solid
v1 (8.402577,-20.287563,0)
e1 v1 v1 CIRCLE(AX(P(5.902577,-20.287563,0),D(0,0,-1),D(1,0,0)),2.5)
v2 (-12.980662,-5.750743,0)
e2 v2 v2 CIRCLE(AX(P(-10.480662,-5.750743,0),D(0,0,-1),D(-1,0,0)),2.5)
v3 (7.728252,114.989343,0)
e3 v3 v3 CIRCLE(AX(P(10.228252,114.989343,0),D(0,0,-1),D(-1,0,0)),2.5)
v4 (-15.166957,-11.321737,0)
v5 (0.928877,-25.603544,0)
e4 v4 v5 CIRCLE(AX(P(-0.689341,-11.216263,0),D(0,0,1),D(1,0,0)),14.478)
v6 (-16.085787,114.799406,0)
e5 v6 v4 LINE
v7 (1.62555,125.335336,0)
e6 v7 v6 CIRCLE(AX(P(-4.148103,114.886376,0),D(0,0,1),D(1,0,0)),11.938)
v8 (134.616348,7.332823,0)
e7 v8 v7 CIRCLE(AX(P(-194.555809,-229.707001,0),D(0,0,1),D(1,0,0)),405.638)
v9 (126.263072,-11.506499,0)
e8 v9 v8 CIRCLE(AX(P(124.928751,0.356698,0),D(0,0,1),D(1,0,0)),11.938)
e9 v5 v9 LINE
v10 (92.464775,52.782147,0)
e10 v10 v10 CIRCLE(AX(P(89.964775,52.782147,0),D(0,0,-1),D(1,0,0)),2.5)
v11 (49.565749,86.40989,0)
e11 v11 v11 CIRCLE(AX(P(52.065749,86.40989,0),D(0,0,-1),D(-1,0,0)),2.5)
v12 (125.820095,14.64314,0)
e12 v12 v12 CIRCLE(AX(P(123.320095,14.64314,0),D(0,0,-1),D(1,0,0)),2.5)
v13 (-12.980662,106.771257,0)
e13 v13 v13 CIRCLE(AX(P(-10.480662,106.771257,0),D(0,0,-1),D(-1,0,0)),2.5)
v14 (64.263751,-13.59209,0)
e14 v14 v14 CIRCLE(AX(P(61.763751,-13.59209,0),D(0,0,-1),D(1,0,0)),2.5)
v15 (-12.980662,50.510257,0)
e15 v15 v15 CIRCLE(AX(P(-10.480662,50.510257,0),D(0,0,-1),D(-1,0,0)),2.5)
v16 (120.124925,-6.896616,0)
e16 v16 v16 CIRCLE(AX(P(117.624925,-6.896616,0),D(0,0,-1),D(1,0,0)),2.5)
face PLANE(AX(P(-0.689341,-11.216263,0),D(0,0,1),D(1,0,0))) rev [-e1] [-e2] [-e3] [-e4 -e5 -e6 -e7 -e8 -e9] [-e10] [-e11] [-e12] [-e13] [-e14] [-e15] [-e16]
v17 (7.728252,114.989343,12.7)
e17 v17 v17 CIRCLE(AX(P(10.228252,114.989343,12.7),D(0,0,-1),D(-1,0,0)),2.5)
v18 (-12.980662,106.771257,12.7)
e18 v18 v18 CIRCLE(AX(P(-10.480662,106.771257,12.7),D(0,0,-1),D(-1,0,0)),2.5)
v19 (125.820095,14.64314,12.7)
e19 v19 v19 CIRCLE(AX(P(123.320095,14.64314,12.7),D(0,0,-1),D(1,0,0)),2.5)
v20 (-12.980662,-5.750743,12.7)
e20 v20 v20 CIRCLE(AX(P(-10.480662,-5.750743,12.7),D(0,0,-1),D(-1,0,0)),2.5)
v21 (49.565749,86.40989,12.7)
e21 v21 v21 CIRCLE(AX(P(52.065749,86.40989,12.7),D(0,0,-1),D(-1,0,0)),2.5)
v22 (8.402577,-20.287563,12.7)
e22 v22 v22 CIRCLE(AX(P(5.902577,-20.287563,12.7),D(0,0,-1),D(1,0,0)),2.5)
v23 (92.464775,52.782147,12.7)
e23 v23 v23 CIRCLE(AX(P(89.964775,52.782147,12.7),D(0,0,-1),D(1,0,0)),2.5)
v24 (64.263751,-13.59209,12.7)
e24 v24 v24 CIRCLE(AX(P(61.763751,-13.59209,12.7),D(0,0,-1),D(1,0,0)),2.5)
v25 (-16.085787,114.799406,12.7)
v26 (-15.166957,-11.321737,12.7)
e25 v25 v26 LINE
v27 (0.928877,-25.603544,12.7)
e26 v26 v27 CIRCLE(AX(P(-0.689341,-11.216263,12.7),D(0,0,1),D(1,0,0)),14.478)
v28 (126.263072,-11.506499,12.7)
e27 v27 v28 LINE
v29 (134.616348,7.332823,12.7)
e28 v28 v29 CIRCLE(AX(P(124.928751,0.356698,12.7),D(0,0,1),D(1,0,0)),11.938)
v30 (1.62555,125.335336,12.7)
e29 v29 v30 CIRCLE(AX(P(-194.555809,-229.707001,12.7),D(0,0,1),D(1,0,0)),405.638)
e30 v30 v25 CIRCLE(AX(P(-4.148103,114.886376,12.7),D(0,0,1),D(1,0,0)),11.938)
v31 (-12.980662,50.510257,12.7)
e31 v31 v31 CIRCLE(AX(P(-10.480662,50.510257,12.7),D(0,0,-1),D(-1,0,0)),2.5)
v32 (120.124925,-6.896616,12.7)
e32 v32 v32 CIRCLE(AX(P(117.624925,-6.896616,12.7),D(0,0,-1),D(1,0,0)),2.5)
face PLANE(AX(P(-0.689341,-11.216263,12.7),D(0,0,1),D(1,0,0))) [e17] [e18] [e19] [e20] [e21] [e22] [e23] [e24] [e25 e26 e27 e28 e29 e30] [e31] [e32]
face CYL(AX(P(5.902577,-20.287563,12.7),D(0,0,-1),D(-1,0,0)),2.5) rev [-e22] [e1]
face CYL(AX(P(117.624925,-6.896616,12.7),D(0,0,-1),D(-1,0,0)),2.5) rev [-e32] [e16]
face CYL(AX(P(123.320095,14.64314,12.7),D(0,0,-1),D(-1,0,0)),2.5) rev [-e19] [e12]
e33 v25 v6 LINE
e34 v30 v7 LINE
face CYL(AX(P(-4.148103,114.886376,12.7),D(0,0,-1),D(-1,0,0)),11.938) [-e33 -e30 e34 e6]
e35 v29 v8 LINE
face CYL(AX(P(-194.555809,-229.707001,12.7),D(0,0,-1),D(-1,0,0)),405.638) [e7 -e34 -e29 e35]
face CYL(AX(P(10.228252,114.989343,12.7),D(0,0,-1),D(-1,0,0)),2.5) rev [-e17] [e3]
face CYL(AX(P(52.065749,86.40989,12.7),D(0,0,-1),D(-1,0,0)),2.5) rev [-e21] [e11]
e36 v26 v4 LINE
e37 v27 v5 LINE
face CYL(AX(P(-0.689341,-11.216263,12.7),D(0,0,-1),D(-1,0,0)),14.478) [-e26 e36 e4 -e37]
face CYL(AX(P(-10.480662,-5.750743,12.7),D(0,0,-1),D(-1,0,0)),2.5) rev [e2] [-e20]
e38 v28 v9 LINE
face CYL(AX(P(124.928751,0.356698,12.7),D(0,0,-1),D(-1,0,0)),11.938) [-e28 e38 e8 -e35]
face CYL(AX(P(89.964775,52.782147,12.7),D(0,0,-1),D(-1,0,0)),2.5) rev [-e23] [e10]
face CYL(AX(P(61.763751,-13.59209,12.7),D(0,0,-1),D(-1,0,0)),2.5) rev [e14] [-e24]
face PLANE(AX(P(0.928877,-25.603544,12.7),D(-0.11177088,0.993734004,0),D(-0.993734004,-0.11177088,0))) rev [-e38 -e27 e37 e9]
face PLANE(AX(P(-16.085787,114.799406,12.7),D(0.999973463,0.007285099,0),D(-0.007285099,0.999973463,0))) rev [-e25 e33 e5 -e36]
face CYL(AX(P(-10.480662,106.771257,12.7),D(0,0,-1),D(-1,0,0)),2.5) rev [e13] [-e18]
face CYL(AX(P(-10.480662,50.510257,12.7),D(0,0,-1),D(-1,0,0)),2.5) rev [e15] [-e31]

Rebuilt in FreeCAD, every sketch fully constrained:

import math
import FreeCAD as App
import Part
import Sketcher
Q = App.Units.Quantity

doc = App.newDocument("Part")
params = doc.addObject("Spreadsheet::Sheet", "Params")
for row, (alias, value) in enumerate([
    ("sketch1_radius", "0.47 in"),
    ("sketch1_radius2", "15.97 in"),
    ("sketch1_radius3", "0.47 in"),
    ("sketch1_radius4", "0.57 in"),
    ("pad1_length", "0.5 in"),
], start=1):
    params.set(f"A{row}", alias)
    params.set(f"B{row}", "=" + value)
    params.setAlias(f"B{row}", alias)

body = doc.addObject("PartDesign::Body", "Body")

# Sketch on XY plane
sketch1 = body.newObject("Sketcher::SketchObject", "Sketch")
sketch1.AttachmentSupport = (doc.getObject("XY_Plane"), [""])
sketch1.MapMode = "FlatFace"
sketch1.addGeometry(Part.LineSegment(App.Vector(0.928877, -25.603544, 0), App.Vector(126.263072, -11.506499, 0)), False)
sketch1.addGeometry(Part.ArcOfCircle(Part.Circle(App.Vector(124.928751, 0.356698, 0), App.Vector(0, 0, 1), 11.938), math.radians(-83.582591), math.radians(35.757999)), False)
sketch1.addGeometry(Part.ArcOfCircle(Part.Circle(App.Vector(-194.555809, -229.707001, 0), App.Vector(0, 0, 1), 405.638), math.radians(35.757999), math.radians(61.076819)), False)
sketch1.addGeometry(Part.ArcOfCircle(Part.Circle(App.Vector(-4.148103, 114.886376, 0), App.Vector(0, 0, 1), 11.938), math.radians(61.076819), math.radians(180.417409)), False)
sketch1.addGeometry(Part.LineSegment(App.Vector(-16.085787, 114.799406, 0), App.Vector(-15.166957, -11.321737, 0)), False)
sketch1.addGeometry(Part.ArcOfCircle(Part.Circle(App.Vector(-0.689341, -11.216263, 0), App.Vector(0, 0, 1), 14.478), math.radians(-179.582591), math.radians(-83.582591)), False)
sketch1.addConstraint(Sketcher.Constraint("Coincident", 0, 2, 1, 1))
sketch1.addConstraint(Sketcher.Constraint("Coincident", 1, 2, 2, 1))
sketch1.addConstraint(Sketcher.Constraint("Coincident", 2, 2, 3, 1))
sketch1.addConstraint(Sketcher.Constraint("Coincident", 3, 2, 4, 1))
sketch1.addConstraint(Sketcher.Constraint("Coincident", 4, 2, 5, 1))
sketch1.addConstraint(Sketcher.Constraint("Coincident", 5, 2, 0, 1))
sketch1.addConstraint(Sketcher.Constraint("Radius", 1, Q("0.47 in")))
sketch1.addConstraint(Sketcher.Constraint("Radius", 2, Q("15.97 in")))
sketch1.addConstraint(Sketcher.Constraint("Radius", 3, Q("0.47 in")))
sketch1.addConstraint(Sketcher.Constraint("Radius", 5, Q("0.57 in")))
sketch1.addConstraint(Sketcher.Constraint("DistanceY", 2, 3, -1, 1, 229.707001))
sketch1.addConstraint(Sketcher.Constraint("DistanceY", 0, 2, -1, 1, 11.506499))
sketch1.addConstraint(Sketcher.Constraint("DistanceY", 2, 3, 1, 3, 230.063699))
sketch1.addConstraint(Sketcher.Constraint("DistanceY", 5, 3, 2, 2, 136.5516))
sketch1.addConstraint(Sketcher.Constraint("DistanceX", 2, 2, 1, 3, 123.303202))
sketch1.addConstraint(Sketcher.Constraint("Distance", 0, 126.12449))
sketch1.addConstraint(Sketcher.Constraint("Distance", 4, 126.12449))
sketch1.addConstraint(Sketcher.Constraint("DistanceX", -1, 1, 1, 3, 124.928751))
sketch1.addConstraint(Sketcher.Constraint("DistanceX", 5, 3, -1, 1, 0.689341))
sketch1.addConstraint(Sketcher.Constraint("DistanceY", 1, 3, 3, 3, 114.529678))
sketch1.addConstraint(Sketcher.Constraint("DistanceY", 0, 2, 1, 2, 18.839322))
sketch1.addConstraint(Sketcher.Constraint("DistanceY", 3, 2, 3, 3, 0.08697))
sketch1.setExpression("Constraints[6]", "Params.sketch1_radius")
sketch1.setExpression("Constraints[7]", "Params.sketch1_radius2")
sketch1.setExpression("Constraints[8]", "Params.sketch1_radius3")
sketch1.setExpression("Constraints[9]", "Params.sketch1_radius4")
pad1 = body.newObject("PartDesign::Pad", "Pad")
pad1.Profile = sketch1
pad1.setExpression("Length", "Params.pad1_length")

# Sketch on XY plane
sketch2 = body.newObject("Sketcher::SketchObject", "Sketch001")
sketch2.AttachmentSupport = (doc.getObject("XY_Plane"), [""])
sketch2.MapMode = "FlatFace"
sketch2.addGeometry(Part.Circle(App.Vector(-10.480662, 106.771257, 0), App.Vector(0, 0, 1), 2.5), False)
sketch2.addGeometry(Part.Circle(App.Vector(-10.480662, 50.510257, 0), App.Vector(0, 0, 1), 2.5), False)
sketch2.addGeometry(Part.Circle(App.Vector(-10.480662, -5.750743, 0), App.Vector(0, 0, 1), 2.5), False)
sketch2.addGeometry(Part.Circle(App.Vector(52.065749, 86.40989, 0), App.Vector(0, 0, 1), 2.5), False)
sketch2.addGeometry(Part.Circle(App.Vector(89.964775, 52.782147, 0), App.Vector(0, 0, 1), 2.5), False)
sketch2.addGeometry(Part.Circle(App.Vector(123.320095, 14.64314, 0), App.Vector(0, 0, 1), 2.5), False)
sketch2.addGeometry(Part.Circle(App.Vector(10.228252, 114.989343, 0), App.Vector(0, 0, 1), 2.5), False)
sketch2.addGeometry(Part.Circle(App.Vector(117.624925, -6.896616, 0), App.Vector(0, 0, 1), 2.5), False)
sketch2.addGeometry(Part.Circle(App.Vector(61.763751, -13.59209, 0), App.Vector(0, 0, 1), 2.5), False)
sketch2.addGeometry(Part.Circle(App.Vector(5.902577, -20.287563, 0), App.Vector(0, 0, 1), 2.5), False)
sketch2.addConstraint(Sketcher.Constraint("Equal", 0, 1))
sketch2.addConstraint(Sketcher.Constraint("Equal", 1, 2))
sketch2.addConstraint(Sketcher.Constraint("Equal", 2, 3))
sketch2.addConstraint(Sketcher.Constraint("Equal", 3, 4))
sketch2.addConstraint(Sketcher.Constraint("Equal", 4, 5))
sketch2.addConstraint(Sketcher.Constraint("Equal", 5, 6))
sketch2.addConstraint(Sketcher.Constraint("Equal", 6, 7))
sketch2.addConstraint(Sketcher.Constraint("Equal", 7, 8))
sketch2.addConstraint(Sketcher.Constraint("Equal", 8, 9))
sketch2.addConstraint(Sketcher.Constraint("Vertical", 0, 3, 1, 3))
sketch2.addConstraint(Sketcher.Constraint("Vertical", 1, 3, 2, 3))
sketch2.addConstraint(Sketcher.Constraint("Diameter", 0, 5.0))
sketch2.addConstraint(Sketcher.Constraint("DistanceY", 2, 3, 0, 3, Q("4.43 in")))
sketch2.addConstraint(Sketcher.Constraint("DistanceY", 1, 3, 0, 3, Q("2.215 in")))
sketch2.addConstraint(Sketcher.Constraint("DistanceX", 9, 3, 4, 3, 84.062198))
sketch2.addConstraint(Sketcher.Constraint("DistanceX", 0, 3, -1, 1, 10.480662))
sketch2.addConstraint(Sketcher.Constraint("DistanceX", -1, 1, 3, 3, 52.065749))
sketch2.addConstraint(Sketcher.Constraint("DistanceY", -1, 1, 3, 3, 86.40989))
sketch2.addConstraint(Sketcher.Constraint("DistanceY", -1, 1, 5, 3, 14.64314))
sketch2.addConstraint(Sketcher.Constraint("DistanceX", -1, 1, 8, 3, 61.763751))
sketch2.addConstraint(Sketcher.Constraint("DistanceY", 8, 3, -1, 1, 13.59209))
sketch2.addConstraint(Sketcher.Constraint("DistanceY", 1, 3, 4, 3, 2.27189))
sketch2.addConstraint(Sketcher.Constraint("DistanceX", 4, 3, 5, 3, 33.35532))
sketch2.addConstraint(Sketcher.Constraint("DistanceX", 7, 3, 5, 3, 5.69517))
sketch2.addConstraint(Sketcher.Constraint("DistanceX", 2, 3, 9, 3, 16.383239))
sketch2.addConstraint(Sketcher.Constraint("DistanceY", 9, 3, 2, 3, 14.53682))
sketch2.addConstraint(Sketcher.Constraint("DistanceY", -1, 1, 0, 3, 106.771257))
sketch2.addConstraint(Sketcher.Constraint("DistanceX", -1, 1, 6, 3, 10.228252))
sketch2.addConstraint(Sketcher.Constraint("DistanceY", -1, 1, 6, 3, 114.989343))
sketch2.addConstraint(Sketcher.Constraint("DistanceY", 7, 3, -1, 1, 6.896616))
pocket1 = body.newObject("PartDesign::Pocket", "Pocket")
pocket1.Profile = sketch2
pocket1.Type = "ThroughAll"
pocket1.Reversed = True

doc.recompute()
